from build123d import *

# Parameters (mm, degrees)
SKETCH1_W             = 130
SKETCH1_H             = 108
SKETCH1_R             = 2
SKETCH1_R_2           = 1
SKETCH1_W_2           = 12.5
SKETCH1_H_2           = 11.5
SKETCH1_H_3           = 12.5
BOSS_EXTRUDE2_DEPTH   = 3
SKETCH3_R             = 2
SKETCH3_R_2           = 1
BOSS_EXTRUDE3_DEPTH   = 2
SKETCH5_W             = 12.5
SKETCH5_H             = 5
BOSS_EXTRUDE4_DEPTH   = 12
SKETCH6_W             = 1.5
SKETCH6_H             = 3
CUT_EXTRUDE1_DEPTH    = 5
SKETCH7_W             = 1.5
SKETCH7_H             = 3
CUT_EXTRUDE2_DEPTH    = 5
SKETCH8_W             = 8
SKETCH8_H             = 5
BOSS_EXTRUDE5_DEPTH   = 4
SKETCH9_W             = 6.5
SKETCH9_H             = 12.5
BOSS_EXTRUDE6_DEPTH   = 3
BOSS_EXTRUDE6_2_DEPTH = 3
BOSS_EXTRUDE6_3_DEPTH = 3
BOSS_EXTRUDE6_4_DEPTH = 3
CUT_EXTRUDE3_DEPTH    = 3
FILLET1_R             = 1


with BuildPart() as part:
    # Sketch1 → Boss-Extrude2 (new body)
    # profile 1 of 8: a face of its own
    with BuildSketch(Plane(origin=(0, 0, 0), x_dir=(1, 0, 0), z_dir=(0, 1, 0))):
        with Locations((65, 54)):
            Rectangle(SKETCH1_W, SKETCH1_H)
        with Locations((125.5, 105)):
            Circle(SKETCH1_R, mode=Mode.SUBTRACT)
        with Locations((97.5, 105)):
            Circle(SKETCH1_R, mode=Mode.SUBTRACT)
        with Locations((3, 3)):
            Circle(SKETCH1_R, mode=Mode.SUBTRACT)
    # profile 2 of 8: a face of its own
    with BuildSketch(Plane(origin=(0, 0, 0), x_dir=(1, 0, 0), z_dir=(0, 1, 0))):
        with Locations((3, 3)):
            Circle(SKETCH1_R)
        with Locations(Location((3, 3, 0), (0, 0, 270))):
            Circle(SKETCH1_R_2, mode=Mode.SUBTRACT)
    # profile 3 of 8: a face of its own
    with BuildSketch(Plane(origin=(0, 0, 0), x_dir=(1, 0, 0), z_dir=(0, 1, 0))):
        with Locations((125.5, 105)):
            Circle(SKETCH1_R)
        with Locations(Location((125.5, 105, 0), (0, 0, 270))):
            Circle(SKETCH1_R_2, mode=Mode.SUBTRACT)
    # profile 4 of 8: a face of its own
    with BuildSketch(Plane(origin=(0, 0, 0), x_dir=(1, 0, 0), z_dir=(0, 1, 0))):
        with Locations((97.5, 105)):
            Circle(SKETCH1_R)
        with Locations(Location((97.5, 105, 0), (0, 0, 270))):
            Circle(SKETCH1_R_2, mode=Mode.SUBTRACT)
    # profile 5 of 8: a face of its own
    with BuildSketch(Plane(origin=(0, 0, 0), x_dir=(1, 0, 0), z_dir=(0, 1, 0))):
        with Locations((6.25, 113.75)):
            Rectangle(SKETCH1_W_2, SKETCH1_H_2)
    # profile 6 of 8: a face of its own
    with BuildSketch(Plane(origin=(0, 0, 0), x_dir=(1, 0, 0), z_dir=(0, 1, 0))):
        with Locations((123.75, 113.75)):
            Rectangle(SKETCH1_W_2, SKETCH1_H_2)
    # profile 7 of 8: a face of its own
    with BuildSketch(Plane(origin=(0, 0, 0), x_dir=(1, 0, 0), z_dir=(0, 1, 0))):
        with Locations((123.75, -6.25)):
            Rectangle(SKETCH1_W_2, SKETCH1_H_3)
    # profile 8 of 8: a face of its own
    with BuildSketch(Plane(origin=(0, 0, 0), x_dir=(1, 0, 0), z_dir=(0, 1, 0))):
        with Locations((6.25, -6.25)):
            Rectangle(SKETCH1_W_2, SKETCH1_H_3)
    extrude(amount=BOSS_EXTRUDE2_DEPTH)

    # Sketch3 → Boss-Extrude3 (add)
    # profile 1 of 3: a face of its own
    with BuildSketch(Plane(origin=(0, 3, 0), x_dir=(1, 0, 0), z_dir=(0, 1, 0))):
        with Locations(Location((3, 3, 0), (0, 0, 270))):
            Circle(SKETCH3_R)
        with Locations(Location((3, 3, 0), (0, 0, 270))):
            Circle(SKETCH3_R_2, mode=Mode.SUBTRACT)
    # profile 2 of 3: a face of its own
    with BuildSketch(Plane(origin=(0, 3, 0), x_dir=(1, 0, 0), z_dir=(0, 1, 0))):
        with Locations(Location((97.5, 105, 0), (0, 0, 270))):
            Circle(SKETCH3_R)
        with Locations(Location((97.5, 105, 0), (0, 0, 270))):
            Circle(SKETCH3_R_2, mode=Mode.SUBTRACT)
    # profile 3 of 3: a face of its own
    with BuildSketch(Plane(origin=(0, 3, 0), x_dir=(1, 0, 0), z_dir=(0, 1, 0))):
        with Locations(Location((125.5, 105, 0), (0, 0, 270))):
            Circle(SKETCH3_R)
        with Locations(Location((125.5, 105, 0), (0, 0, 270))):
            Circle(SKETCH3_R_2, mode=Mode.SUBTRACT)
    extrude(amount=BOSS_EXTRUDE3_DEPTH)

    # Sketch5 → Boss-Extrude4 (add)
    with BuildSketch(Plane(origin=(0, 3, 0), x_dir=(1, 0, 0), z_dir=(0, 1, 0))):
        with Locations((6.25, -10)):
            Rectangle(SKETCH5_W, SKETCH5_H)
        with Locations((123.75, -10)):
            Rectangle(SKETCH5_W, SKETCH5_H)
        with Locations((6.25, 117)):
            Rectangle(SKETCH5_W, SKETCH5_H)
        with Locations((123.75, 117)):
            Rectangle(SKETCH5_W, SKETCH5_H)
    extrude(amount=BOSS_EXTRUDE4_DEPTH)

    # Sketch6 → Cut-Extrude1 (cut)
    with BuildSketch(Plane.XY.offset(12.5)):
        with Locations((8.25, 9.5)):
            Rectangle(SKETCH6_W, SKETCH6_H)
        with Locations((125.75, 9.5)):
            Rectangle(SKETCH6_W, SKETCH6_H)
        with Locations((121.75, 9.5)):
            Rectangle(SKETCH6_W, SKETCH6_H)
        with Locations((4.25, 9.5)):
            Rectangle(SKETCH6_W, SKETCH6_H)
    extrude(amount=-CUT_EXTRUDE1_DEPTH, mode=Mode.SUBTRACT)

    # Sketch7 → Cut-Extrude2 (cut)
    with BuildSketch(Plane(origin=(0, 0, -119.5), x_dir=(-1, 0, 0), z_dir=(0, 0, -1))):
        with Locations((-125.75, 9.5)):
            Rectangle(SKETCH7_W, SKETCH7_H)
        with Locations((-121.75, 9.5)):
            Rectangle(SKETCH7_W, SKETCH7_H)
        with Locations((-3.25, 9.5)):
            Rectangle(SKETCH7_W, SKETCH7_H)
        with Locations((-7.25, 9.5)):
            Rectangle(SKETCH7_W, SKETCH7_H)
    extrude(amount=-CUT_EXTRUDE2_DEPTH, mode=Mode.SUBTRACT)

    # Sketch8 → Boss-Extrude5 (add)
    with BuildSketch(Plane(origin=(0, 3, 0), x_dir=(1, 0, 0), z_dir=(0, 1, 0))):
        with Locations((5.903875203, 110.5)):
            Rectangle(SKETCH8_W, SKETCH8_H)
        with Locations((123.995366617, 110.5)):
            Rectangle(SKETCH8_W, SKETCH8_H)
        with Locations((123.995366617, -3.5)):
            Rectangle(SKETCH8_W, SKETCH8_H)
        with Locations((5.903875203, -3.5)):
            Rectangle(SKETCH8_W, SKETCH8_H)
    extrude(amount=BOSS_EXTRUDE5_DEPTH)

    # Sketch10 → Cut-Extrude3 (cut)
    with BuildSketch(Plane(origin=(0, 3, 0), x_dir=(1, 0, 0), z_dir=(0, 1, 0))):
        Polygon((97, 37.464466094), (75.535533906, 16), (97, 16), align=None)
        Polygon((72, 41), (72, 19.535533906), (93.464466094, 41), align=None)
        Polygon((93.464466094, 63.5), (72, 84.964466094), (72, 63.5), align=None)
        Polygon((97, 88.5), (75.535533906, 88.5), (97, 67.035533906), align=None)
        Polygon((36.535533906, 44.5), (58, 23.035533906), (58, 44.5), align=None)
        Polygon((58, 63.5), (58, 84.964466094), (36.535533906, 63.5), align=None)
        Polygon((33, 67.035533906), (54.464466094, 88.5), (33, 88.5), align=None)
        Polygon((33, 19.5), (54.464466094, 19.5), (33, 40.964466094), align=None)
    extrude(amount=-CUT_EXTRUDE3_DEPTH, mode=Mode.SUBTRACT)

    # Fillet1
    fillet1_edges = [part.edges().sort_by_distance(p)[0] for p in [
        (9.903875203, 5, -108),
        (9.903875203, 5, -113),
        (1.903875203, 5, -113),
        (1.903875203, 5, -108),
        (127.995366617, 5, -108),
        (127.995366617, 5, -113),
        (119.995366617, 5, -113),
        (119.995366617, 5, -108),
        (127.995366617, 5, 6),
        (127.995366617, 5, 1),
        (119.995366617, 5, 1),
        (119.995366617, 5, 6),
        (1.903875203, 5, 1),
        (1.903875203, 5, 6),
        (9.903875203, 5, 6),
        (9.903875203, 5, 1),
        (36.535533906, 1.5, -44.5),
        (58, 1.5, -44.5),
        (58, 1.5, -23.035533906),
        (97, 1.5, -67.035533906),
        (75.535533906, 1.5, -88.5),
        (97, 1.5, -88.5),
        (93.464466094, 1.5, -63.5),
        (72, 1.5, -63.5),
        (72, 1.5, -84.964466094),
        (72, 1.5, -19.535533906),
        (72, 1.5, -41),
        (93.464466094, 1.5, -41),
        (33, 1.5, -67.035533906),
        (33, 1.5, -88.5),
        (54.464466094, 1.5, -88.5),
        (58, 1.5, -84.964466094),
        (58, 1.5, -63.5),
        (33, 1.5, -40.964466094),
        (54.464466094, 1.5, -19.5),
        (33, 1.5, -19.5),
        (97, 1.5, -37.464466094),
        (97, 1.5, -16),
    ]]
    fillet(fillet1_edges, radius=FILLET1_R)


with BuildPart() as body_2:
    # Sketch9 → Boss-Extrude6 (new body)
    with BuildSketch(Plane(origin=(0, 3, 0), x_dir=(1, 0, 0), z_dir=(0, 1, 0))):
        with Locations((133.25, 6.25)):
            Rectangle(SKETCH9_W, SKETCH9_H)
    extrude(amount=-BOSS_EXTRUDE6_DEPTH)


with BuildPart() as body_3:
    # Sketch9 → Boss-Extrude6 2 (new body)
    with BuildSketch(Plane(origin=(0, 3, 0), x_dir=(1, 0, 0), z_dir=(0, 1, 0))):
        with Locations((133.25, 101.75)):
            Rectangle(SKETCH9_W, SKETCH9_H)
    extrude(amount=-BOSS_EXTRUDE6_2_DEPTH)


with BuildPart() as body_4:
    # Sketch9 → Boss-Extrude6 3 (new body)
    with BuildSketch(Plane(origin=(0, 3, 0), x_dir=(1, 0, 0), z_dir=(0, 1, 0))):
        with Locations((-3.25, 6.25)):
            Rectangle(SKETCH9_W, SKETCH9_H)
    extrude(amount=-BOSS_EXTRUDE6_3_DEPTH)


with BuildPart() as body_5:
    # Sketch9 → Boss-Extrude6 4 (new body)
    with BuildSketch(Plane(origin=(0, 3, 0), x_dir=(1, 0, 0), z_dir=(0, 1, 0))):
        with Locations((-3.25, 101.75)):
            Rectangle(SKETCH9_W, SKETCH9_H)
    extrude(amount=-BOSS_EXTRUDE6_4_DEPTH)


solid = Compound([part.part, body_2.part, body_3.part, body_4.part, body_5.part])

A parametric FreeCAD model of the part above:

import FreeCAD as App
import Part
import Sketcher
from FreeCAD import Vector
Q = App.Units.Quantity


def edges_at(feature, points):
    """Names of the edges that pass closest to the given points."""
    edges = feature.Shape.Edges
    near = lambda p: min(range(len(edges)), key=lambda i: edges[i].distToShape(Part.Vertex(*p))[0])
    return sorted({f"Edge{near(p) + 1}" for p in points})

doc = App.newDocument("Part")
body = doc.addObject("PartDesign::Body", "Body")

# Sketch on XZ plane
sketch1 = body.newObject("Sketcher::SketchObject", "Sketch")
sketch1.AttachmentSupport = (doc.getObject("XZ_Plane"), [""])
sketch1.MapMode = "FlatFace"
sketch1.addGeometry(Part.LineSegment(Vector(0, 12.5, 0), Vector(12.5, 12.5, 0)), False)
sketch1.addGeometry(Part.LineSegment(Vector(12.5, 12.5, 0), Vector(12.5, 0, 0)), False)
sketch1.addGeometry(Part.LineSegment(Vector(12.5, 0, 0), Vector(117.5, 0, 0)), False)
sketch1.addGeometry(Part.LineSegment(Vector(117.5, 0, 0), Vector(117.5, 12.5, 0)), False)
sketch1.addGeometry(Part.LineSegment(Vector(117.5, 12.5, 0), Vector(130, 12.5, 0)), False)
sketch1.addGeometry(Part.LineSegment(Vector(130, 12.5, 0), Vector(130, -119.5, 0)), False)
sketch1.addGeometry(Part.LineSegment(Vector(130, -119.5, 0), Vector(117.5, -119.5, 0)), False)
sketch1.addGeometry(Part.LineSegment(Vector(117.5, -119.5, 0), Vector(117.5, -108, 0)), False)
sketch1.addGeometry(Part.LineSegment(Vector(117.5, -108, 0), Vector(12.5, -108, 0)), False)
sketch1.addGeometry(Part.LineSegment(Vector(12.5, -108, 0), Vector(12.5, -119.5, 0)), False)
sketch1.addGeometry(Part.LineSegment(Vector(12.5, -119.5, 0), Vector(0, -119.5, 0)), False)
sketch1.addGeometry(Part.LineSegment(Vector(0, -119.5, 0), Vector(0, 12.5, 0)), False)
sketch1.addGeometry(Part.Circle(Vector(3, -3, 0), Vector(0, 0, 1), 1), False)
sketch1.addGeometry(Part.Circle(Vector(97.5, -105, 0), Vector(0, 0, 1), 1), False)
sketch1.addGeometry(Part.Circle(Vector(125.5, -105, 0), Vector(0, 0, 1), 1), False)
sketch1.addConstraint(Sketcher.Constraint("Coincident", 0, 2, 1, 1))
sketch1.addConstraint(Sketcher.Constraint("Coincident", 1, 2, 2, 1))
sketch1.addConstraint(Sketcher.Constraint("Coincident", 2, 2, 3, 1))
sketch1.addConstraint(Sketcher.Constraint("Coincident", 3, 2, 4, 1))
sketch1.addConstraint(Sketcher.Constraint("Coincident", 4, 2, 5, 1))
sketch1.addConstraint(Sketcher.Constraint("Coincident", 5, 2, 6, 1))
sketch1.addConstraint(Sketcher.Constraint("Coincident", 6, 2, 7, 1))
sketch1.addConstraint(Sketcher.Constraint("Coincident", 7, 2, 8, 1))
sketch1.addConstraint(Sketcher.Constraint("Coincident", 8, 2, 9, 1))
sketch1.addConstraint(Sketcher.Constraint("Coincident", 9, 2, 10, 1))
sketch1.addConstraint(Sketcher.Constraint("Coincident", 10, 2, 11, 1))
sketch1.addConstraint(Sketcher.Constraint("Coincident", 11, 2, 0, 1))
sketch1.addConstraint(Sketcher.Constraint("Horizontal", 0))
sketch1.addConstraint(Sketcher.Constraint("Vertical", 1))
sketch1.addConstraint(Sketcher.Constraint("Horizontal", 2))
sketch1.addConstraint(Sketcher.Constraint("Vertical", 3))
sketch1.addConstraint(Sketcher.Constraint("Horizontal", 4))
sketch1.addConstraint(Sketcher.Constraint("Vertical", 5))
sketch1.addConstraint(Sketcher.Constraint("Horizontal", 6))
sketch1.addConstraint(Sketcher.Constraint("Vertical", 7))
sketch1.addConstraint(Sketcher.Constraint("Horizontal", 8))
sketch1.addConstraint(Sketcher.Constraint("Vertical", 9))
sketch1.addConstraint(Sketcher.Constraint("Horizontal", 10))
sketch1.addConstraint(Sketcher.Constraint("Vertical", 11))
sketch1.addConstraint(Sketcher.Constraint("Equal", 12, 13))
sketch1.addConstraint(Sketcher.Constraint("Equal", 13, 14))
sketch1.addConstraint(Sketcher.Constraint("PointOnObject", 1, 2, -1))
sketch1.addConstraint(Sketcher.Constraint("PointOnObject", 10, 2, -2))
sketch1.addConstraint(Sketcher.Constraint("Horizontal", 13, 3, 14, 3))
sketch1.addConstraint(Sketcher.Constraint("Horizontal", 0, 2, 3, 2))
sketch1.addConstraint(Sketcher.Constraint("Horizontal", 6, 2, 9, 2))
sketch1.addConstraint(Sketcher.Constraint("Vertical", 3, 2, 6, 2))
sketch1.addConstraint(Sketcher.Constraint("Vertical", 1, 2, 8, 2))
sketch1.addConstraint(Sketcher.Constraint("Equal", 0, 4))
sketch1.addConstraint(Sketcher.Constraint("Equal", 10, 1))
sketch1.addConstraint(Sketcher.Constraint("Diameter", 12, Q("2 mm")))
sketch1.addConstraint(Sketcher.Constraint("DistanceX", 2, 1, 2, 2, Q("105 mm")))
sketch1.addConstraint(Sketcher.Constraint("DistanceY", 5, 2, 5, 1, Q("132 mm")))
sketch1.addConstraint(Sketcher.Constraint("DistanceX", 0, 1, 0, 2, Q("12.5 mm")))
sketch1.addConstraint(Sketcher.Constraint("DistanceY", 7, 1, 7, 2, Q("11.5 mm")))
sketch1.addConstraint(Sketcher.Constraint("DistanceX", -1, 1, 12, 3, Q("3 mm")))
sketch1.addConstraint(Sketcher.Constraint("DistanceY", 12, 3, -1, 1, Q("3 mm")))
sketch1.addConstraint(Sketcher.Constraint("DistanceY", 13, 3, -1, 1, Q("105 mm")))
sketch1.addConstraint(Sketcher.Constraint("DistanceX", 13, 3, 14, 3, Q("28 mm")))
sketch1.addConstraint(Sketcher.Constraint("DistanceX", 0, 2, 13, 3, Q("85 mm")))
pad1 = body.newObject("PartDesign::Pad", "Pad")
pad1.Profile = sketch1
pad1.Length = 3
pad1.Reversed = True

# Sketch on XZ plane
sketch2 = body.newObject("Sketcher::SketchObject", "Sketch001")
sketch2.AttachmentSupport = (doc.getObject("XZ_Plane"), [""])
sketch2.MapMode = "FlatFace"
sketch2.AttachmentOffset = App.Placement(Vector(0, 0, -3), App.Rotation())
sketch2.addGeometry(Part.Circle(Vector(3, -3, 0), Vector(0, 0, 1), 2), False)
sketch2.addGeometry(Part.Circle(Vector(3, -3, 0), Vector(0, 0, 1), 1), False)
sketch2.addGeometry(Part.Circle(Vector(97.5, -105, 0), Vector(0, 0, 1), 2), False)
sketch2.addGeometry(Part.Circle(Vector(97.5, -105, 0), Vector(0, 0, 1), 1), False)
sketch2.addGeometry(Part.Circle(Vector(125.5, -105, 0), Vector(0, 0, 1), 2), False)
sketch2.addGeometry(Part.Circle(Vector(125.5, -105, 0), Vector(0, 0, 1), 1), False)
sketch2.addConstraint(Sketcher.Constraint("Coincident", 1, 3, 0, 3))
sketch2.addConstraint(Sketcher.Constraint("Coincident", 3, 3, 2, 3))
sketch2.addConstraint(Sketcher.Constraint("Coincident", 5, 3, 4, 3))
sketch2.addConstraint(Sketcher.Constraint("Equal", 0, 2))
sketch2.addConstraint(Sketcher.Constraint("Equal", 1, 3))
sketch2.addConstraint(Sketcher.Constraint("Equal", 2, 4))
sketch2.addConstraint(Sketcher.Constraint("Equal", 3, 5))
sketch2.addConstraint(Sketcher.Constraint("Horizontal", 3, 3, 4, 3))
sketch2.addConstraint(Sketcher.Constraint("Diameter", 0, Q("4 mm")))
sketch2.addConstraint(Sketcher.Constraint("Diameter", 1, Q("2 mm")))
sketch2.addConstraint(Sketcher.Constraint("DistanceX", -1, 1, 0, 3, Q("3 mm")))
sketch2.addConstraint(Sketcher.Constraint("DistanceY", 0, 3, -1, 1, Q("3 mm")))
sketch2.addConstraint(Sketcher.Constraint("DistanceY", 2, 3, -1, 1, Q("105 mm")))
sketch2.addConstraint(Sketcher.Constraint("DistanceX", 2, 3, 4, 3, Q("28 mm")))
sketch2.addConstraint(Sketcher.Constraint("DistanceX", -1, 1, 2, 3, Q("97.5 mm")))
pad2 = body.newObject("PartDesign::Pad", "Pad001")
pad2.Profile = sketch2
pad2.Length = 2
pad2.Reversed = True

# Sketch on XZ plane
sketch3 = body.newObject("Sketcher::SketchObject", "Sketch002")
sketch3.AttachmentSupport = (doc.getObject("XZ_Plane"), [""])
sketch3.MapMode = "FlatFace"
sketch3.AttachmentOffset = App.Placement(Vector(0, 0, -3), App.Rotation())
sketch3.addGeometry(Part.LineSegment(Vector(0, 7.5, 0), Vector(0, 12.5, 0)), False)
sketch3.addGeometry(Part.LineSegment(Vector(0, 12.5, 0), Vector(12.5, 12.5, 0)), False)
sketch3.addGeometry(Part.LineSegment(Vector(12.5, 12.5, 0), Vector(12.5, 7.5, 0)), False)
sketch3.addGeometry(Part.LineSegment(Vector(12.5, 7.5, 0), Vector(0, 7.5, 0)), False)
sketch3.addGeometry(Part.LineSegment(Vector(117.5, 7.5, 0), Vector(117.5, 12.5, 0)), False)
sketch3.addGeometry(Part.LineSegment(Vector(117.5, 12.5, 0), Vector(130, 12.5, 0)), False)
sketch3.addGeometry(Part.LineSegment(Vector(130, 12.5, 0), Vector(130, 7.5, 0)), False)
sketch3.addGeometry(Part.LineSegment(Vector(130, 7.5, 0), Vector(117.5, 7.5, 0)), False)
sketch3.addGeometry(Part.LineSegment(Vector(0, -119.5, 0), Vector(0, -114.5, 0)), False)
sketch3.addGeometry(Part.LineSegment(Vector(0, -114.5, 0), Vector(12.5, -114.5, 0)), False)
sketch3.addGeometry(Part.LineSegment(Vector(12.5, -114.5, 0), Vector(12.5, -119.5, 0)), False)
sketch3.addGeometry(Part.LineSegment(Vector(12.5, -119.5, 0), Vector(0, -119.5, 0)), False)
sketch3.addGeometry(Part.LineSegment(Vector(117.5, -119.5, 0), Vector(117.5, -114.5, 0)), False)
sketch3.addGeometry(Part.LineSegment(Vector(117.5, -114.5, 0), Vector(130, -114.5, 0)), False)
sketch3.addGeometry(Part.LineSegment(Vector(130, -114.5, 0), Vector(130, -119.5, 0)), False)
sketch3.addGeometry(Part.LineSegment(Vector(130, -119.5, 0), Vector(117.5, -119.5, 0)), False)
sketch3.addConstraint(Sketcher.Constraint("Coincident", 0, 2, 1, 1))
sketch3.addConstraint(Sketcher.Constraint("Coincident", 1, 2, 2, 1))
sketch3.addConstraint(Sketcher.Constraint("Coincident", 2, 2, 3, 1))
sketch3.addConstraint(Sketcher.Constraint("Coincident", 3, 2, 0, 1))
sketch3.addConstraint(Sketcher.Constraint("Coincident", 4, 2, 5, 1))
sketch3.addConstraint(Sketcher.Constraint("Coincident", 5, 2, 6, 1))
sketch3.addConstraint(Sketcher.Constraint("Coincident", 6, 2, 7, 1))
sketch3.addConstraint(Sketcher.Constraint("Coincident", 7, 2, 4, 1))
sketch3.addConstraint(Sketcher.Constraint("Coincident", 8, 2, 9, 1))
sketch3.addConstraint(Sketcher.Constraint("Coincident", 9, 2, 10, 1))
sketch3.addConstraint(Sketcher.Constraint("Coincident", 10, 2, 11, 1))
sketch3.addConstraint(Sketcher.Constraint("Coincident", 11, 2, 8, 1))
sketch3.addConstraint(Sketcher.Constraint("Coincident", 12, 2, 13, 1))
sketch3.addConstraint(Sketcher.Constraint("Coincident", 13, 2, 14, 1))
sketch3.addConstraint(Sketcher.Constraint("Coincident", 14, 2, 15, 1))
sketch3.addConstraint(Sketcher.Constraint("Coincident", 15, 2, 12, 1))
sketch3.addConstraint(Sketcher.Constraint("Vertical", 0))
sketch3.addConstraint(Sketcher.Constraint("Horizontal", 1))
sketch3.addConstraint(Sketcher.Constraint("Vertical", 2))
sketch3.addConstraint(Sketcher.Constraint("Horizontal", 3))
sketch3.addConstraint(Sketcher.Constraint("Vertical", 4))
sketch3.addConstraint(Sketcher.Constraint("Horizontal", 5))
sketch3.addConstraint(Sketcher.Constraint("Vertical", 6))
sketch3.addConstraint(Sketcher.Constraint("Horizontal", 7))
sketch3.addConstraint(Sketcher.Constraint("Vertical", 8))
sketch3.addConstraint(Sketcher.Constraint("Horizontal", 9))
sketch3.addConstraint(Sketcher.Constraint("Vertical", 10))
sketch3.addConstraint(Sketcher.Constraint("Horizontal", 11))
sketch3.addConstraint(Sketcher.Constraint("Vertical", 12))
sketch3.addConstraint(Sketcher.Constraint("Horizontal", 13))
sketch3.addConstraint(Sketcher.Constraint("Vertical", 14))
sketch3.addConstraint(Sketcher.Constraint("Horizontal", 15))
sketch3.addConstraint(Sketcher.Constraint("PointOnObject", 0, 2, -2))
sketch3.addConstraint(Sketcher.Constraint("PointOnObject", 8, 2, -2))
sketch3.addConstraint(Sketcher.Constraint("Horizontal", 1, 2, 4, 2))
sketch3.addConstraint(Sketcher.Constraint("Horizontal", 3, 2, 6, 2))
sketch3.addConstraint(Sketcher.Constraint("Horizontal", 9, 2, 12, 2))
sketch3.addConstraint(Sketcher.Constraint("Horizontal", 11, 2, 14, 2))
sketch3.addConstraint(Sketcher.Constraint("Vertical", 2, 2, 9, 2))
sketch3.addConstraint(Sketcher.Constraint("Vertical", 7, 2, 12, 2))
sketch3.addConstraint(Sketcher.Constraint("Vertical", 6, 2, 13, 2))
sketch3.addConstraint(Sketcher.Constraint("Equal", 3, 5))
sketch3.addConstraint(Sketcher.Constraint("Equal", 6, 8))
sketch3.addConstraint(Sketcher.Constraint("DistanceY", 0, 1, 0, 2, Q("5 mm")))
sketch3.addConstraint(Sketcher.Constraint("DistanceX", 1, 1, 1, 2, Q("12.5 mm")))
sketch3.addConstraint(Sketcher.Constraint("DistanceX", -1, 1, 5, 2, Q("130 mm")))
sketch3.addConstraint(Sketcher.Constraint("DistanceY", 8, 2, 3, 2, Q("122 mm")))
sketch3.addConstraint(Sketcher.Constraint("DistanceY", -1, 1, 0, 2, Q("12.5 mm")))
pad3 = body.newObject("PartDesign::Pad", "Pad002")
pad3.Profile = sketch3
pad3.Length = 12
pad3.Reversed = True

# Sketch on XY plane
sketch4 = body.newObject("Sketcher::SketchObject", "Sketch003")
sketch4.AttachmentSupport = (doc.getObject("XY_Plane"), [""])
sketch4.MapMode = "FlatFace"
sketch4.AttachmentOffset = App.Placement(Vector(0, 0, 12.5), App.Rotation())
sketch4.addGeometry(Part.LineSegment(Vector(7.5, 11, 0), Vector(7.5, 8, 0)), False)
sketch4.addGeometry(Part.LineSegment(Vector(7.5, 8, 0), Vector(9, 8, 0)), False)
sketch4.addGeometry(Part.LineSegment(Vector(9, 8, 0), Vector(9, 11, 0)), False)
sketch4.addGeometry(Part.LineSegment(Vector(9, 11, 0), Vector(7.5, 11, 0)), False)
sketch4.addGeometry(Part.LineSegment(Vector(125, 11, 0), Vector(125, 8, 0)), False)
sketch4.addGeometry(Part.LineSegment(Vector(125, 8, 0), Vector(126.5, 8, 0)), False)
sketch4.addGeometry(Part.LineSegment(Vector(126.5, 8, 0), Vector(126.5, 11, 0)), False)
sketch4.addGeometry(Part.LineSegment(Vector(126.5, 11, 0), Vector(125, 11, 0)), False)
sketch4.addGeometry(Part.LineSegment(Vector(121, 11, 0), Vector(121, 8, 0)), False)
sketch4.addGeometry(Part.LineSegment(Vector(121, 8, 0), Vector(122.5, 8, 0)), False)
sketch4.addGeometry(Part.LineSegment(Vector(122.5, 8, 0), Vector(122.5, 11, 0)), False)
sketch4.addGeometry(Part.LineSegment(Vector(122.5, 11, 0), Vector(121, 11, 0)), False)
sketch4.addGeometry(Part.LineSegment(Vector(3.5, 11, 0), Vector(3.5, 8, 0)), False)
sketch4.addGeometry(Part.LineSegment(Vector(3.5, 8, 0), Vector(5, 8, 0)), False)
sketch4.addGeometry(Part.LineSegment(Vector(5, 8, 0), Vector(5, 11, 0)), False)
sketch4.addGeometry(Part.LineSegment(Vector(5, 11, 0), Vector(3.5, 11, 0)), False)
sketch4.addConstraint(Sketcher.Constraint("Coincident", 0, 2, 1, 1))
sketch4.addConstraint(Sketcher.Constraint("Coincident", 1, 2, 2, 1))
sketch4.addConstraint(Sketcher.Constraint("Coincident", 2, 2, 3, 1))
sketch4.addConstraint(Sketcher.Constraint("Coincident", 3, 2, 0, 1))
sketch4.addConstraint(Sketcher.Constraint("Coincident", 4, 2, 5, 1))
sketch4.addConstraint(Sketcher.Constraint("Coincident", 5, 2, 6, 1))
sketch4.addConstraint(Sketcher.Constraint("Coincident", 6, 2, 7, 1))
sketch4.addConstraint(Sketcher.Constraint("Coincident", 7, 2, 4, 1))
sketch4.addConstraint(Sketcher.Constraint("Coincident", 8, 2, 9, 1))
sketch4.addConstraint(Sketcher.Constraint("Coincident", 9, 2, 10, 1))
sketch4.addConstraint(Sketcher.Constraint("Coincident", 10, 2, 11, 1))
sketch4.addConstraint(Sketcher.Constraint("Coincident", 11, 2, 8, 1))
sketch4.addConstraint(Sketcher.Constraint("Coincident", 12, 2, 13, 1))
sketch4.addConstraint(Sketcher.Constraint("Coincident", 13, 2, 14, 1))
sketch4.addConstraint(Sketcher.Constraint("Coincident", 14, 2, 15, 1))
sketch4.addConstraint(Sketcher.Constraint("Coincident", 15, 2, 12, 1))
sketch4.addConstraint(Sketcher.Constraint("Vertical", 0))
sketch4.addConstraint(Sketcher.Constraint("Horizontal", 1))
sketch4.addConstraint(Sketcher.Constraint("Vertical", 2))
sketch4.addConstraint(Sketcher.Constraint("Horizontal", 3))
sketch4.addConstraint(Sketcher.Constraint("Vertical", 4))
sketch4.addConstraint(Sketcher.Constraint("Horizontal", 5))
sketch4.addConstraint(Sketcher.Constraint("Vertical", 6))
sketch4.addConstraint(Sketcher.Constraint("Horizontal", 7))
sketch4.addConstraint(Sketcher.Constraint("Vertical", 8))
sketch4.addConstraint(Sketcher.Constraint("Horizontal", 9))
sketch4.addConstraint(Sketcher.Constraint("Vertical", 10))
sketch4.addConstraint(Sketcher.Constraint("Horizontal", 11))
sketch4.addConstraint(Sketcher.Constraint("Vertical", 12))
sketch4.addConstraint(Sketcher.Constraint("Horizontal", 13))
sketch4.addConstraint(Sketcher.Constraint("Vertical", 14))
sketch4.addConstraint(Sketcher.Constraint("Horizontal", 15))
sketch4.addConstraint(Sketcher.Constraint("Horizontal", 1, 2, 4, 2))
sketch4.addConstraint(Sketcher.Constraint("Horizontal", 3, 2, 6, 2))
sketch4.addConstraint(Sketcher.Constraint("Horizontal", 5, 2, 8, 2))
sketch4.addConstraint(Sketcher.Constraint("Horizontal", 7, 2, 10, 2))
sketch4.addConstraint(Sketcher.Constraint("Horizontal", 9, 2, 12, 2))
sketch4.addConstraint(Sketcher.Constraint("Horizontal", 11, 2, 14, 2))
sketch4.addConstraint(Sketcher.Constraint("Equal", 3, 5))
sketch4.addConstraint(Sketcher.Constraint("Equal", 7, 9))
sketch4.addConstraint(Sketcher.Constraint("Equal", 11, 13))
sketch4.addConstraint(Sketcher.Constraint("DistanceY", 0, 2, 0, 1, Q("3 mm")))
sketch4.addConstraint(Sketcher.Constraint("DistanceX", 1, 1, 1, 2, Q("1.5 mm")))
sketch4.addConstraint(Sketcher.Constraint("DistanceY", -1, 1, 0, 2, Q("8 mm")))
sketch4.addConstraint(Sketcher.Constraint("DistanceX", -1, 1, 1, 2, Q("9 mm")))
sketch4.addConstraint(Sketcher.Constraint("DistanceX", -1, 1, 4, 2, Q("125 mm")))
sketch4.addConstraint(Sketcher.Constraint("DistanceX", -1, 1, 8, 2, Q("121 mm")))
sketch4.addConstraint(Sketcher.Constraint("DistanceX", -1, 1, 13, 2, Q("5 mm")))
pocket1 = body.newObject("PartDesign::Pocket", "Pocket")
pocket1.Profile = sketch4
pocket1.Length = 5

# Sketch on XY plane
sketch5 = body.newObject("Sketcher::SketchObject", "Sketch004")
sketch5.AttachmentSupport = (doc.getObject("XY_Plane"), [""])
sketch5.MapMode = "FlatFace"
sketch5.AttachmentOffset = App.Placement(Vector(0, 0, -119.5), App.Rotation())
sketch5.addGeometry(Part.LineSegment(Vector(126.5, 11, 0), Vector(126.5, 8, 0)), False)
sketch5.addGeometry(Part.LineSegment(Vector(126.5, 8, 0), Vector(125, 8, 0)), False)
sketch5.addGeometry(Part.LineSegment(Vector(125, 8, 0), Vector(125, 11, 0)), False)
sketch5.addGeometry(Part.LineSegment(Vector(125, 11, 0), Vector(126.5, 11, 0)), False)
sketch5.addGeometry(Part.LineSegment(Vector(122.5, 11, 0), Vector(122.5, 8, 0)), False)
sketch5.addGeometry(Part.LineSegment(Vector(122.5, 8, 0), Vector(121, 8, 0)), False)
sketch5.addGeometry(Part.LineSegment(Vector(121, 8, 0), Vector(121, 11, 0)), False)
sketch5.addGeometry(Part.LineSegment(Vector(121, 11, 0), Vector(122.5, 11, 0)), False)
sketch5.addGeometry(Part.LineSegment(Vector(4, 11, 0), Vector(4, 8, 0)), False)
sketch5.addGeometry(Part.LineSegment(Vector(4, 8, 0), Vector(2.5, 8, 0)), False)
sketch5.addGeometry(Part.LineSegment(Vector(2.5, 8, 0), Vector(2.5, 11, 0)), False)
sketch5.addGeometry(Part.LineSegment(Vector(2.5, 11, 0), Vector(4, 11, 0)), False)
sketch5.addGeometry(Part.LineSegment(Vector(8, 11, 0), Vector(8, 8, 0)), False)
sketch5.addGeometry(Part.LineSegment(Vector(8, 8, 0), Vector(6.5, 8, 0)), False)
sketch5.addGeometry(Part.LineSegment(Vector(6.5, 8, 0), Vector(6.5, 11, 0)), False)
sketch5.addGeometry(Part.LineSegment(Vector(6.5, 11, 0), Vector(8, 11, 0)), False)
sketch5.addConstraint(Sketcher.Constraint("Coincident", 0, 2, 1, 1))
sketch5.addConstraint(Sketcher.Constraint("Coincident", 1, 2, 2, 1))
sketch5.addConstraint(Sketcher.Constraint("Coincident", 2, 2, 3, 1))
sketch5.addConstraint(Sketcher.Constraint("Coincident", 3, 2, 0, 1))
sketch5.addConstraint(Sketcher.Constraint("Coincident", 4, 2, 5, 1))
sketch5.addConstraint(Sketcher.Constraint("Coincident", 5, 2, 6, 1))
sketch5.addConstraint(Sketcher.Constraint("Coincident", 6, 2, 7, 1))
sketch5.addConstraint(Sketcher.Constraint("Coincident", 7, 2, 4, 1))
sketch5.addConstraint(Sketcher.Constraint("Coincident", 8, 2, 9, 1))
sketch5.addConstraint(Sketcher.Constraint("Coincident", 9, 2, 10, 1))
sketch5.addConstraint(Sketcher.Constraint("Coincident", 10, 2, 11, 1))
sketch5.addConstraint(Sketcher.Constraint("Coincident", 11, 2, 8, 1))
sketch5.addConstraint(Sketcher.Constraint("Coincident", 12, 2, 13, 1))
sketch5.addConstraint(Sketcher.Constraint("Coincident", 13, 2, 14, 1))
sketch5.addConstraint(Sketcher.Constraint("Coincident", 14, 2, 15, 1))
sketch5.addConstraint(Sketcher.Constraint("Coincident", 15, 2, 12, 1))
sketch5.addConstraint(Sketcher.Constraint("Vertical", 0))
sketch5.addConstraint(Sketcher.Constraint("Horizontal", 1))
sketch5.addConstraint(Sketcher.Constraint("Vertical", 2))
sketch5.addConstraint(Sketcher.Constraint("Horizontal", 3))
sketch5.addConstraint(Sketcher.Constraint("Vertical", 4))
sketch5.addConstraint(Sketcher.Constraint("Horizontal", 5))
sketch5.addConstraint(Sketcher.Constraint("Vertical", 6))
sketch5.addConstraint(Sketcher.Constraint("Horizontal", 7))
sketch5.addConstraint(Sketcher.Constraint("Vertical", 8))
sketch5.addConstraint(Sketcher.Constraint("Horizontal", 9))
sketch5.addConstraint(Sketcher.Constraint("Vertical", 10))
sketch5.addConstraint(Sketcher.Constraint("Horizontal", 11))
sketch5.addConstraint(Sketcher.Constraint("Vertical", 12))
sketch5.addConstraint(Sketcher.Constraint("Horizontal", 13))
sketch5.addConstraint(Sketcher.Constraint("Vertical", 14))
sketch5.addConstraint(Sketcher.Constraint("Horizontal", 15))
sketch5.addConstraint(Sketcher.Constraint("Horizontal", 1, 2, 4, 2))
sketch5.addConstraint(Sketcher.Constraint("Horizontal", 3, 2, 6, 2))
sketch5.addConstraint(Sketcher.Constraint("Horizontal", 5, 2, 8, 2))
sketch5.addConstraint(Sketcher.Constraint("Horizontal", 7, 2, 10, 2))
sketch5.addConstraint(Sketcher.Constraint("Horizontal", 9, 2, 12, 2))
sketch5.addConstraint(Sketcher.Constraint("Horizontal", 11, 2, 14, 2))
sketch5.addConstraint(Sketcher.Constraint("Equal", 3, 5))
sketch5.addConstraint(Sketcher.Constraint("Equal", 7, 9))
sketch5.addConstraint(Sketcher.Constraint("Equal", 11, 13))
sketch5.addConstraint(Sketcher.Constraint("DistanceY", 0, 2, 0, 1, Q("3 mm")))
sketch5.addConstraint(Sketcher.Constraint("DistanceX", 1, 2, 1, 1, Q("1.5 mm")))
sketch5.addConstraint(Sketcher.Constraint("DistanceY", -1, 1, 0, 2, Q("8 mm")))
sketch5.addConstraint(Sketcher.Constraint("DistanceX", -1, 1, 1, 2, Q("125 mm")))
sketch5.addConstraint(Sketcher.Constraint("DistanceX", -1, 1, 5, 2, Q("121 mm")))
sketch5.addConstraint(Sketcher.Constraint("DistanceX", -1, 1, 8, 2, Q("4 mm")))
sketch5.addConstraint(Sketcher.Constraint("DistanceX", -1, 1, 12, 2, Q("8 mm")))
pocket2 = body.newObject("PartDesign::Pocket", "Pocket001")
pocket2.Profile = sketch5
pocket2.Length = 5
pocket2.Reversed = True

# Sketch on XZ plane
sketch6 = body.newObject("Sketcher::SketchObject", "Sketch005")
sketch6.AttachmentSupport = (doc.getObject("XZ_Plane"), [""])
sketch6.MapMode = "FlatFace"
sketch6.AttachmentOffset = App.Placement(Vector(0, 0, -3), App.Rotation())
sketch6.addGeometry(Part.LineSegment(Vector(1.903875, -113, 0), Vector(1.903875, -108, 0)), False)
sketch6.addGeometry(Part.LineSegment(Vector(1.903875, -108, 0), Vector(9.903875, -108, 0)), False)
sketch6.addGeometry(Part.LineSegment(Vector(9.903875, -108, 0), Vector(9.903875, -113, 0)), False)
sketch6.addGeometry(Part.LineSegment(Vector(9.903875, -113, 0), Vector(1.903875, -113, 0)), False)
sketch6.addGeometry(Part.LineSegment(Vector(119.995367, -113, 0), Vector(119.995367, -108, 0)), False)
sketch6.addGeometry(Part.LineSegment(Vector(119.995367, -108, 0), Vector(127.995367, -108, 0)), False)
sketch6.addGeometry(Part.LineSegment(Vector(127.995367, -108, 0), Vector(127.995367, -113, 0)), False)
sketch6.addGeometry(Part.LineSegment(Vector(127.995367, -113, 0), Vector(119.995367, -113, 0)), False)
sketch6.addGeometry(Part.LineSegment(Vector(119.995367, 1, 0), Vector(119.995367, 6, 0)), False)
sketch6.addGeometry(Part.LineSegment(Vector(119.995367, 6, 0), Vector(127.995367, 6, 0)), False)
sketch6.addGeometry(Part.LineSegment(Vector(127.995367, 6, 0), Vector(127.995367, 1, 0)), False)
sketch6.addGeometry(Part.LineSegment(Vector(127.995367, 1, 0), Vector(119.995367, 1, 0)), False)
sketch6.addGeometry(Part.LineSegment(Vector(1.903875, 1, 0), Vector(1.903875, 6, 0)), False)
sketch6.addGeometry(Part.LineSegment(Vector(1.903875, 6, 0), Vector(9.903875, 6, 0)), False)
sketch6.addGeometry(Part.LineSegment(Vector(9.903875, 6, 0), Vector(9.903875, 1, 0)), False)
sketch6.addGeometry(Part.LineSegment(Vector(9.903875, 1, 0), Vector(1.903875, 1, 0)), False)
sketch6.addConstraint(Sketcher.Constraint("Coincident", 0, 2, 1, 1))
sketch6.addConstraint(Sketcher.Constraint("Coincident", 1, 2, 2, 1))
sketch6.addConstraint(Sketcher.Constraint("Coincident", 2, 2, 3, 1))
sketch6.addConstraint(Sketcher.Constraint("Coincident", 3, 2, 0, 1))
sketch6.addConstraint(Sketcher.Constraint("Coincident", 4, 2, 5, 1))
sketch6.addConstraint(Sketcher.Constraint("Coincident", 5, 2, 6, 1))
sketch6.addConstraint(Sketcher.Constraint("Coincident", 6, 2, 7, 1))
sketch6.addConstraint(Sketcher.Constraint("Coincident", 7, 2, 4, 1))
sketch6.addConstraint(Sketcher.Constraint("Coincident", 8, 2, 9, 1))
sketch6.addConstraint(Sketcher.Constraint("Coincident", 9, 2, 10, 1))
sketch6.addConstraint(Sketcher.Constraint("Coincident", 10, 2, 11, 1))
sketch6.addConstraint(Sketcher.Constraint("Coincident", 11, 2, 8, 1))
sketch6.addConstraint(Sketcher.Constraint("Coincident", 12, 2, 13, 1))
sketch6.addConstraint(Sketcher.Constraint("Coincident", 13, 2, 14, 1))
sketch6.addConstraint(Sketcher.Constraint("Coincident", 14, 2, 15, 1))
sketch6.addConstraint(Sketcher.Constraint("Coincident", 15, 2, 12, 1))
sketch6.addConstraint(Sketcher.Constraint("Vertical", 0))
sketch6.addConstraint(Sketcher.Constraint("Horizontal", 1))
sketch6.addConstraint(Sketcher.Constraint("Vertical", 2))
sketch6.addConstraint(Sketcher.Constraint("Horizontal", 3))
sketch6.addConstraint(Sketcher.Constraint("Vertical", 4))
sketch6.addConstraint(Sketcher.Constraint("Horizontal", 5))
sketch6.addConstraint(Sketcher.Constraint("Vertical", 6))
sketch6.addConstraint(Sketcher.Constraint("Horizontal", 7))
sketch6.addConstraint(Sketcher.Constraint("Vertical", 8))
sketch6.addConstraint(Sketcher.Constraint("Horizontal", 9))
sketch6.addConstraint(Sketcher.Constraint("Vertical", 10))
sketch6.addConstraint(Sketcher.Constraint("Horizontal", 11))
sketch6.addConstraint(Sketcher.Constraint("Vertical", 12))
sketch6.addConstraint(Sketcher.Constraint("Horizontal", 13))
sketch6.addConstraint(Sketcher.Constraint("Vertical", 14))
sketch6.addConstraint(Sketcher.Constraint("Horizontal", 15))
sketch6.addConstraint(Sketcher.Constraint("Horizontal", 1, 2, 4, 2))
sketch6.addConstraint(Sketcher.Constraint("Horizontal", 3, 2, 6, 2))
sketch6.addConstraint(Sketcher.Constraint("Horizontal", 9, 2, 12, 2))
sketch6.addConstraint(Sketcher.Constraint("Horizontal", 11, 2, 14, 2))
sketch6.addConstraint(Sketcher.Constraint("Vertical", 7, 2, 8, 2))
sketch6.addConstraint(Sketcher.Constraint("Vertical", 6, 2, 9, 2))
sketch6.addConstraint(Sketcher.Constraint("Vertical", 3, 2, 12, 2))
sketch6.addConstraint(Sketcher.Constraint("Vertical", 2, 2, 13, 2))
sketch6.addConstraint(Sketcher.Constraint("Equal", 3, 5))
sketch6.addConstraint(Sketcher.Constraint("Equal", 6, 8))
sketch6.addConstraint(Sketcher.Constraint("DistanceX", 1, 1, 1, 2, Q("8 mm")))
sketch6.addConstraint(Sketcher.Constraint("DistanceY", 0, 1, 0, 2, Q("5 mm")))
sketch6.addConstraint(Sketcher.Constraint("DistanceY", 0, 2, -1, 1, Q("108 mm")))
sketch6.addConstraint(Sketcher.Constraint("DistanceY", -1, 1, 8, 2, Q("6 mm")))
sketch6.addConstraint(Sketcher.Constraint("DistanceX", 1, 2, 4, 2, Q("110.091491 mm")))
sketch6.addConstraint(Sketcher.Constraint("DistanceX", -1, 1, 0, 2, Q("1.903875 mm")))
pad4 = body.newObject("PartDesign::Pad", "Pad003")
pad4.Profile = sketch6
pad4.Length = 4
pad4.Reversed = True

# Sketch on XZ plane
sketch7 = body.newObject("Sketcher::SketchObject", "Sketch006")
sketch7.AttachmentSupport = (doc.getObject("XZ_Plane"), [""])
sketch7.MapMode = "FlatFace"
sketch7.AttachmentOffset = App.Placement(Vector(0, 0, -3), App.Rotation())
sketch7.addGeometry(Part.LineSegment(Vector(97, -37.464466, 0), Vector(75.535534, -16, 0)), False)
sketch7.addGeometry(Part.LineSegment(Vector(75.535534, -16, 0), Vector(97, -16, 0)), False)
sketch7.addGeometry(Part.LineSegment(Vector(97, -16, 0), Vector(97, -37.464466, 0)), False)
sketch7.addGeometry(Part.LineSegment(Vector(72, -41, 0), Vector(72, -19.535534, 0)), False)
sketch7.addGeometry(Part.LineSegment(Vector(72, -19.535534, 0), Vector(93.464466, -41, 0)), False)
sketch7.addGeometry(Part.LineSegment(Vector(93.464466, -41, 0), Vector(72, -41, 0)), False)
sketch7.addGeometry(Part.LineSegment(Vector(93.464466, -63.5, 0), Vector(72, -84.964466, 0)), False)
sketch7.addGeometry(Part.LineSegment(Vector(72, -84.964466, 0), Vector(72, -63.5, 0)), False)
sketch7.addGeometry(Part.LineSegment(Vector(72, -63.5, 0), Vector(93.464466, -63.5, 0)), False)
sketch7.addGeometry(Part.LineSegment(Vector(97, -88.5, 0), Vector(75.535534, -88.5, 0)), False)
sketch7.addGeometry(Part.LineSegment(Vector(75.535534, -88.5, 0), Vector(97, -67.035534, 0)), False)
sketch7.addGeometry(Part.LineSegment(Vector(97, -67.035534, 0), Vector(97, -88.5, 0)), False)
sketch7.addGeometry(Part.LineSegment(Vector(36.535534, -44.5, 0), Vector(58, -23.035534, 0)), False)
sketch7.addGeometry(Part.LineSegment(Vector(58, -23.035534, 0), Vector(58, -44.5, 0)), False)
sketch7.addGeometry(Part.LineSegment(Vector(58, -44.5, 0), Vector(36.535534, -44.5, 0)), False)
sketch7.addGeometry(Part.LineSegment(Vector(58, -63.5, 0), Vector(58, -84.964466, 0)), False)
sketch7.addGeometry(Part.LineSegment(Vector(58, -84.964466, 0), Vector(36.535534, -63.5, 0)), False)
sketch7.addGeometry(Part.LineSegment(Vector(36.535534, -63.5, 0), Vector(58, -63.5, 0)), False)
sketch7.addGeometry(Part.LineSegment(Vector(33, -67.035534, 0), Vector(54.464466, -88.5, 0)), False)
sketch7.addGeometry(Part.LineSegment(Vector(54.464466, -88.5, 0), Vector(33, -88.5, 0)), False)
sketch7.addGeometry(Part.LineSegment(Vector(33, -88.5, 0), Vector(33, -67.035534, 0)), False)
sketch7.addGeometry(Part.LineSegment(Vector(33, -19.5, 0), Vector(54.464466, -19.5, 0)), False)
sketch7.addGeometry(Part.LineSegment(Vector(54.464466, -19.5, 0), Vector(33, -40.964466, 0)), False)
sketch7.addGeometry(Part.LineSegment(Vector(33, -40.964466, 0), Vector(33, -19.5, 0)), False)
sketch7.addConstraint(Sketcher.Constraint("Coincident", 0, 2, 1, 1))
sketch7.addConstraint(Sketcher.Constraint("Coincident", 1, 2, 2, 1))
sketch7.addConstraint(Sketcher.Constraint("Coincident", 2, 2, 0, 1))
sketch7.addConstraint(Sketcher.Constraint("Coincident", 3, 2, 4, 1))
sketch7.addConstraint(Sketcher.Constraint("Coincident", 4, 2, 5, 1))
sketch7.addConstraint(Sketcher.Constraint("Coincident", 5, 2, 3, 1))
sketch7.addConstraint(Sketcher.Constraint("Coincident", 6, 2, 7, 1))
sketch7.addConstraint(Sketcher.Constraint("Coincident", 7, 2, 8, 1))
sketch7.addConstraint(Sketcher.Constraint("Coincident", 8, 2, 6, 1))
sketch7.addConstraint(Sketcher.Constraint("Coincident", 9, 2, 10, 1))
sketch7.addConstraint(Sketcher.Constraint("Coincident", 10, 2, 11, 1))
sketch7.addConstraint(Sketcher.Constraint("Coincident", 11, 2, 9, 1))
sketch7.addConstraint(Sketcher.Constraint("Coincident", 12, 2, 13, 1))
sketch7.addConstraint(Sketcher.Constraint("Coincident", 13, 2, 14, 1))
sketch7.addConstraint(Sketcher.Constraint("Coincident", 14, 2, 12, 1))
sketch7.addConstraint(Sketcher.Constraint("Coincident", 15, 2, 16, 1))
sketch7.addConstraint(Sketcher.Constraint("Coincident", 16, 2, 17, 1))
sketch7.addConstraint(Sketcher.Constraint("Coincident", 17, 2, 15, 1))
sketch7.addConstraint(Sketcher.Constraint("Coincident", 18, 2, 19, 1))
sketch7.addConstraint(Sketcher.Constraint("Coincident", 19, 2, 20, 1))
sketch7.addConstraint(Sketcher.Constraint("Coincident", 20, 2, 18, 1))
sketch7.addConstraint(Sketcher.Constraint("Coincident", 21, 2, 22, 1))
sketch7.addConstraint(Sketcher.Constraint("Coincident", 22, 2, 23, 1))
sketch7.addConstraint(Sketcher.Constraint("Coincident", 23, 2, 21, 1))
sketch7.addConstraint(Sketcher.Constraint("Horizontal", 1))
sketch7.addConstraint(Sketcher.Constraint("Vertical", 2))
sketch7.addConstraint(Sketcher.Constraint("Vertical", 3))
sketch7.addConstraint(Sketcher.Constraint("Horizontal", 5))
sketch7.addConstraint(Sketcher.Constraint("Vertical", 7))
sketch7.addConstraint(Sketcher.Constraint("Horizontal", 8))
sketch7.addConstraint(Sketcher.Constraint("Horizontal", 9))
sketch7.addConstraint(Sketcher.Constraint("Vertical", 11))
sketch7.addConstraint(Sketcher.Constraint("Vertical", 13))
sketch7.addConstraint(Sketcher.Constraint("Horizontal", 14))
sketch7.addConstraint(Sketcher.Constraint("Vertical", 15))
sketch7.addConstraint(Sketcher.Constraint("Horizontal", 17))
sketch7.addConstraint(Sketcher.Constraint("Horizontal", 19))
sketch7.addConstraint(Sketcher.Constraint("Vertical", 20))
sketch7.addConstraint(Sketcher.Constraint("Horizontal", 21))
sketch7.addConstraint(Sketcher.Constraint("Vertical", 23))
sketch7.addConstraint(Sketcher.Constraint("Parallel", 0, 4))
sketch7.addConstraint(Sketcher.Constraint("Perpendicular", 4, 6))
sketch7.addConstraint(Sketcher.Constraint("Parallel", 6, 10))
sketch7.addConstraint(Sketcher.Constraint("Parallel", 10, 12))
sketch7.addConstraint(Sketcher.Constraint("Perpendicular", 12, 16))
sketch7.addConstraint(Sketcher.Constraint("Parallel", 16, 18))
sketch7.addConstraint(Sketcher.Constraint("Perpendicular", 18, 22))
sketch7.addConstraint(Sketcher.Constraint("Horizontal", 6, 2, 15, 2))
sketch7.addConstraint(Sketcher.Constraint("Horizontal", 8, 2, 16, 2))
sketch7.addConstraint(Sketcher.Constraint("Horizontal", 11, 2, 18, 2))
sketch7.addConstraint(Sketcher.Constraint("Horizontal", 10, 2, 20, 2))
sketch7.addConstraint(Sketcher.Constraint("Vertical", 5, 2, 6, 2))
sketch7.addConstraint(Sketcher.Constraint("Vertical", 4, 2, 8, 2))
sketch7.addConstraint(Sketcher.Constraint("Vertical", 0, 2, 9, 2))
sketch7.addConstraint(Sketcher.Constraint("Vertical", 2, 2, 10, 2))
sketch7.addConstraint(Sketcher.Constraint("Vertical", 13, 2, 15, 2))
sketch7.addConstraint(Sketcher.Constraint("Vertical", 14, 2, 16, 2))
sketch7.addConstraint(Sketcher.Constraint("Vertical", 18, 2, 21, 2))
sketch7.addConstraint(Sketcher.Constraint("Vertical", 20, 2, 22, 2))
sketch7.addConstraint(Sketcher.Constraint("Equal", 1, 5))
sketch7.addConstraint(Sketcher.Constraint("Equal", 9, 14))
sketch7.addConstraint(Sketcher.Constraint("DistanceY", 0, 2, -1, 1, Q("16 mm")))
sketch7.addConstraint(Sketcher.Constraint("DistanceX", -1, 1, 1, 2, Q("97 mm")))
sketch7.addConstraint(Sketcher.Constraint("DistanceX", -1, 1, 3, 2, Q("72 mm")))
sketch7.addConstraint(Sketcher.Constraint("DistanceY", 4, 2, -1, 1, Q("41 mm")))
sketch7.addConstraint(Sketcher.Constraint("DistanceX", -1, 1, 12, 2, Q("58 mm")))
sketch7.addConstraint(Sketcher.Constraint("DistanceX", -1, 1, 19, 2, Q("33 mm")))
sketch7.addConstraint(Sketcher.Constraint("DistanceY", 9, 2, 7, 2, Q("25 mm")))
sketch7.addConstraint(Sketcher.Constraint("DistanceY", 7, 2, 13, 2, Q("19 mm")))
sketch7.addConstraint(Sketcher.Constraint("DistanceY", 13, 2, 21, 2, Q("25 mm")))
sketch7.addConstraint(Sketcher.Constraint("DistanceY", 7, 2, -1, 1, Q("63.5 mm")))
sketch7.addConstraint(Sketcher.Constraint("Distance", 0, Q("30.355339 mm")))
pocket3 = body.newObject("PartDesign::Pocket", "Pocket002")
pocket3.Profile = sketch7
pocket3.Length = 3
pocket3.Reversed = True
doc.recompute()

fillet = body.newObject("PartDesign::Fillet", "Fillet")
fillet.Base = (pocket3, edges_at(pocket3, [
    (9.904, 5, -108),
    (9.904, 5, -113),
    (1.904, 5, -113),
    (1.904, 5, -108),
    (127.995, 5, -108),
    (127.995, 5, -113),
    (119.995, 5, -113),
    (119.995, 5, -108),
    (127.995, 5, 6),
    (127.995, 5, 1),
    (119.995, 5, 1),
    (119.995, 5, 6),
    (1.904, 5, 1),
    (1.904, 5, 6),
    (9.904, 5, 6),
    (9.904, 5, 1),
    (36.536, 1.5, -44.5),
    (58, 1.5, -44.5),
    (58, 1.5, -23.036),
    (97, 1.5, -67.036),
    (75.536, 1.5, -88.5),
    (97, 1.5, -88.5),
    (93.464, 1.5, -63.5),
    (72, 1.5, -63.5),
    (72, 1.5, -84.964),
    (72, 1.5, -19.536),
    (72, 1.5, -41),
    (93.464, 1.5, -41),
    (33, 1.5, -67.036),
    (33, 1.5, -88.5),
    (54.464, 1.5, -88.5),
    (58, 1.5, -84.964),
    (58, 1.5, -63.5),
    (33, 1.5, -40.964),
    (54.464, 1.5, -19.5),
    (33, 1.5, -19.5),
    (97, 1.5, -37.464),
    (97, 1.5, -16),
]))
fillet.Radius = 1
body2 = doc.addObject("PartDesign::Body", "Body001")

# Sketch on XZ plane
sketch8 = body2.newObject("Sketcher::SketchObject", "Sketch007")
sketch8.AttachmentSupport = (doc.getObject("XZ_Plane001"), [""])
sketch8.MapMode = "FlatFace"
sketch8.AttachmentOffset = App.Placement(Vector(0, 0, -3), App.Rotation())
sketch8.addGeometry(Part.LineSegment(Vector(130, -12.5, 0), Vector(130, 0, 0)), False)
sketch8.addGeometry(Part.LineSegment(Vector(130, 0, 0), Vector(136.5, 0, 0)), False)
sketch8.addGeometry(Part.LineSegment(Vector(136.5, 0, 0), Vector(136.5, -12.5, 0)), False)
sketch8.addGeometry(Part.LineSegment(Vector(136.5, -12.5, 0), Vector(130, -12.5, 0)), False)
sketch8.addConstraint(Sketcher.Constraint("Coincident", 0, 2, 1, 1))
sketch8.addConstraint(Sketcher.Constraint("Coincident", 1, 2, 2, 1))
sketch8.addConstraint(Sketcher.Constraint("Coincident", 2, 2, 3, 1))
sketch8.addConstraint(Sketcher.Constraint("Coincident", 3, 2, 0, 1))
sketch8.addConstraint(Sketcher.Constraint("Vertical", 0))
sketch8.addConstraint(Sketcher.Constraint("Horizontal", 1))
sketch8.addConstraint(Sketcher.Constraint("Vertical", 2))
sketch8.addConstraint(Sketcher.Constraint("Horizontal", 3))
sketch8.addConstraint(Sketcher.Constraint("PointOnObject", 0, 2, -1))
sketch8.addConstraint(Sketcher.Constraint("DistanceX", 1, 1, 1, 2, Q("6.5 mm")))
sketch8.addConstraint(Sketcher.Constraint("DistanceY", 0, 1, 0, 2, Q("12.5 mm")))
sketch8.addConstraint(Sketcher.Constraint("DistanceX", -1, 1, 0, 2, Q("130 mm")))
pad5 = body2.newObject("PartDesign::Pad", "Pad004")
pad5.Profile = sketch8
pad5.Length = 3
body3 = doc.addObject("PartDesign::Body", "Body002")

# Sketch on XZ plane
sketch9 = body3.newObject("Sketcher::SketchObject", "Sketch008")
sketch9.AttachmentSupport = (doc.getObject("XZ_Plane002"), [""])
sketch9.MapMode = "FlatFace"
sketch9.AttachmentOffset = App.Placement(Vector(0, 0, -3), App.Rotation())
sketch9.addGeometry(Part.LineSegment(Vector(130, -108, 0), Vector(130, -95.5, 0)), False)
sketch9.addGeometry(Part.LineSegment(Vector(130, -95.5, 0), Vector(136.5, -95.5, 0)), False)
sketch9.addGeometry(Part.LineSegment(Vector(136.5, -95.5, 0), Vector(136.5, -108, 0)), False)
sketch9.addGeometry(Part.LineSegment(Vector(136.5, -108, 0), Vector(130, -108, 0)), False)
sketch9.addConstraint(Sketcher.Constraint("Coincident", 0, 2, 1, 1))
sketch9.addConstraint(Sketcher.Constraint("Coincident", 1, 2, 2, 1))
sketch9.addConstraint(Sketcher.Constraint("Coincident", 2, 2, 3, 1))
sketch9.addConstraint(Sketcher.Constraint("Coincident", 3, 2, 0, 1))
sketch9.addConstraint(Sketcher.Constraint("Vertical", 0))
sketch9.addConstraint(Sketcher.Constraint("Horizontal", 1))
sketch9.addConstraint(Sketcher.Constraint("Vertical", 2))
sketch9.addConstraint(Sketcher.Constraint("Horizontal", 3))
sketch9.addConstraint(Sketcher.Constraint("DistanceX", 1, 1, 1, 2, Q("6.5 mm")))
sketch9.addConstraint(Sketcher.Constraint("DistanceY", 0, 1, 0, 2, Q("12.5 mm")))
sketch9.addConstraint(Sketcher.Constraint("DistanceX", -1, 1, 0, 2, Q("130 mm")))
sketch9.addConstraint(Sketcher.Constraint("DistanceY", 2, 2, -1, 1, Q("108 mm")))
pad6 = body3.newObject("PartDesign::Pad", "Pad005")
pad6.Profile = sketch9
pad6.Length = 3
body4 = doc.addObject("PartDesign::Body", "Body003")

# Sketch on XZ plane
sketch10 = body4.newObject("Sketcher::SketchObject", "Sketch009")
sketch10.AttachmentSupport = (doc.getObject("XZ_Plane003"), [""])
sketch10.MapMode = "FlatFace"
sketch10.AttachmentOffset = App.Placement(Vector(0, 0, -3), App.Rotation())
sketch10.addGeometry(Part.LineSegment(Vector(-6.5, -12.5, 0), Vector(-6.5, 0, 0)), False)
sketch10.addGeometry(Part.LineSegment(Vector(-6.5, 0, 0), Vector(0, 0, 0)), False)
sketch10.addGeometry(Part.LineSegment(Vector(0, 0, 0), Vector(0, -12.5, 0)), False)
sketch10.addGeometry(Part.LineSegment(Vector(0, -12.5, 0), Vector(-6.5, -12.5, 0)), False)
sketch10.addConstraint(Sketcher.Constraint("Coincident", 0, 2, 1, 1))
sketch10.addConstraint(Sketcher.Constraint("Coincident", 1, 2, 2, 1))
sketch10.addConstraint(Sketcher.Constraint("Coincident", 2, 2, 3, 1))
sketch10.addConstraint(Sketcher.Constraint("Coincident", 3, 2, 0, 1))
sketch10.addConstraint(Sketcher.Constraint("Vertical", 0))
sketch10.addConstraint(Sketcher.Constraint("Horizontal", 1))
sketch10.addConstraint(Sketcher.Constraint("Vertical", 2))
sketch10.addConstraint(Sketcher.Constraint("Horizontal", 3))
sketch10.addConstraint(Sketcher.Constraint("Coincident", 1, 2, -1, 1))
sketch10.addConstraint(Sketcher.Constraint("DistanceX", 1, 1, 1, 2, Q("6.5 mm")))
sketch10.addConstraint(Sketcher.Constraint("DistanceY", 0, 1, 0, 2, Q("12.5 mm")))
pad7 = body4.newObject("PartDesign::Pad", "Pad006")
pad7.Profile = sketch10
pad7.Length = 3
body5 = doc.addObject("PartDesign::Body", "Body004")

# Sketch on XZ plane
sketch11 = body5.newObject("Sketcher::SketchObject", "Sketch010")
sketch11.AttachmentSupport = (doc.getObject("XZ_Plane004"), [""])
sketch11.MapMode = "FlatFace"
sketch11.AttachmentOffset = App.Placement(Vector(0, 0, -3), App.Rotation())
sketch11.addGeometry(Part.LineSegment(Vector(-6.5, -108, 0), Vector(-6.5, -95.5, 0)), False)
sketch11.addGeometry(Part.LineSegment(Vector(-6.5, -95.5, 0), Vector(0, -95.5, 0)), False)
sketch11.addGeometry(Part.LineSegment(Vector(0, -95.5, 0), Vector(0, -108, 0)), False)
sketch11.addGeometry(Part.LineSegment(Vector(0, -108, 0), Vector(-6.5, -108, 0)), False)
sketch11.addConstraint(Sketcher.Constraint("Coincident", 0, 2, 1, 1))
sketch11.addConstraint(Sketcher.Constraint("Coincident", 1, 2, 2, 1))
sketch11.addConstraint(Sketcher.Constraint("Coincident", 2, 2, 3, 1))
sketch11.addConstraint(Sketcher.Constraint("Coincident", 3, 2, 0, 1))
sketch11.addConstraint(Sketcher.Constraint("Vertical", 0))
sketch11.addConstraint(Sketcher.Constraint("Horizontal", 1))
sketch11.addConstraint(Sketcher.Constraint("Vertical", 2))
sketch11.addConstraint(Sketcher.Constraint("Horizontal", 3))
sketch11.addConstraint(Sketcher.Constraint("PointOnObject", 1, 2, -2))
sketch11.addConstraint(Sketcher.Constraint("DistanceX", 1, 1, 1, 2, Q("6.5 mm")))
sketch11.addConstraint(Sketcher.Constraint("DistanceY", 0, 1, 0, 2, Q("12.5 mm")))
sketch11.addConstraint(Sketcher.Constraint("DistanceY", 2, 2, -1, 1, Q("108 mm")))
pad8 = body5.newObject("PartDesign::Pad", "Pad007")
pad8.Profile = sketch11
pad8.Length = 3

doc.recompute()
